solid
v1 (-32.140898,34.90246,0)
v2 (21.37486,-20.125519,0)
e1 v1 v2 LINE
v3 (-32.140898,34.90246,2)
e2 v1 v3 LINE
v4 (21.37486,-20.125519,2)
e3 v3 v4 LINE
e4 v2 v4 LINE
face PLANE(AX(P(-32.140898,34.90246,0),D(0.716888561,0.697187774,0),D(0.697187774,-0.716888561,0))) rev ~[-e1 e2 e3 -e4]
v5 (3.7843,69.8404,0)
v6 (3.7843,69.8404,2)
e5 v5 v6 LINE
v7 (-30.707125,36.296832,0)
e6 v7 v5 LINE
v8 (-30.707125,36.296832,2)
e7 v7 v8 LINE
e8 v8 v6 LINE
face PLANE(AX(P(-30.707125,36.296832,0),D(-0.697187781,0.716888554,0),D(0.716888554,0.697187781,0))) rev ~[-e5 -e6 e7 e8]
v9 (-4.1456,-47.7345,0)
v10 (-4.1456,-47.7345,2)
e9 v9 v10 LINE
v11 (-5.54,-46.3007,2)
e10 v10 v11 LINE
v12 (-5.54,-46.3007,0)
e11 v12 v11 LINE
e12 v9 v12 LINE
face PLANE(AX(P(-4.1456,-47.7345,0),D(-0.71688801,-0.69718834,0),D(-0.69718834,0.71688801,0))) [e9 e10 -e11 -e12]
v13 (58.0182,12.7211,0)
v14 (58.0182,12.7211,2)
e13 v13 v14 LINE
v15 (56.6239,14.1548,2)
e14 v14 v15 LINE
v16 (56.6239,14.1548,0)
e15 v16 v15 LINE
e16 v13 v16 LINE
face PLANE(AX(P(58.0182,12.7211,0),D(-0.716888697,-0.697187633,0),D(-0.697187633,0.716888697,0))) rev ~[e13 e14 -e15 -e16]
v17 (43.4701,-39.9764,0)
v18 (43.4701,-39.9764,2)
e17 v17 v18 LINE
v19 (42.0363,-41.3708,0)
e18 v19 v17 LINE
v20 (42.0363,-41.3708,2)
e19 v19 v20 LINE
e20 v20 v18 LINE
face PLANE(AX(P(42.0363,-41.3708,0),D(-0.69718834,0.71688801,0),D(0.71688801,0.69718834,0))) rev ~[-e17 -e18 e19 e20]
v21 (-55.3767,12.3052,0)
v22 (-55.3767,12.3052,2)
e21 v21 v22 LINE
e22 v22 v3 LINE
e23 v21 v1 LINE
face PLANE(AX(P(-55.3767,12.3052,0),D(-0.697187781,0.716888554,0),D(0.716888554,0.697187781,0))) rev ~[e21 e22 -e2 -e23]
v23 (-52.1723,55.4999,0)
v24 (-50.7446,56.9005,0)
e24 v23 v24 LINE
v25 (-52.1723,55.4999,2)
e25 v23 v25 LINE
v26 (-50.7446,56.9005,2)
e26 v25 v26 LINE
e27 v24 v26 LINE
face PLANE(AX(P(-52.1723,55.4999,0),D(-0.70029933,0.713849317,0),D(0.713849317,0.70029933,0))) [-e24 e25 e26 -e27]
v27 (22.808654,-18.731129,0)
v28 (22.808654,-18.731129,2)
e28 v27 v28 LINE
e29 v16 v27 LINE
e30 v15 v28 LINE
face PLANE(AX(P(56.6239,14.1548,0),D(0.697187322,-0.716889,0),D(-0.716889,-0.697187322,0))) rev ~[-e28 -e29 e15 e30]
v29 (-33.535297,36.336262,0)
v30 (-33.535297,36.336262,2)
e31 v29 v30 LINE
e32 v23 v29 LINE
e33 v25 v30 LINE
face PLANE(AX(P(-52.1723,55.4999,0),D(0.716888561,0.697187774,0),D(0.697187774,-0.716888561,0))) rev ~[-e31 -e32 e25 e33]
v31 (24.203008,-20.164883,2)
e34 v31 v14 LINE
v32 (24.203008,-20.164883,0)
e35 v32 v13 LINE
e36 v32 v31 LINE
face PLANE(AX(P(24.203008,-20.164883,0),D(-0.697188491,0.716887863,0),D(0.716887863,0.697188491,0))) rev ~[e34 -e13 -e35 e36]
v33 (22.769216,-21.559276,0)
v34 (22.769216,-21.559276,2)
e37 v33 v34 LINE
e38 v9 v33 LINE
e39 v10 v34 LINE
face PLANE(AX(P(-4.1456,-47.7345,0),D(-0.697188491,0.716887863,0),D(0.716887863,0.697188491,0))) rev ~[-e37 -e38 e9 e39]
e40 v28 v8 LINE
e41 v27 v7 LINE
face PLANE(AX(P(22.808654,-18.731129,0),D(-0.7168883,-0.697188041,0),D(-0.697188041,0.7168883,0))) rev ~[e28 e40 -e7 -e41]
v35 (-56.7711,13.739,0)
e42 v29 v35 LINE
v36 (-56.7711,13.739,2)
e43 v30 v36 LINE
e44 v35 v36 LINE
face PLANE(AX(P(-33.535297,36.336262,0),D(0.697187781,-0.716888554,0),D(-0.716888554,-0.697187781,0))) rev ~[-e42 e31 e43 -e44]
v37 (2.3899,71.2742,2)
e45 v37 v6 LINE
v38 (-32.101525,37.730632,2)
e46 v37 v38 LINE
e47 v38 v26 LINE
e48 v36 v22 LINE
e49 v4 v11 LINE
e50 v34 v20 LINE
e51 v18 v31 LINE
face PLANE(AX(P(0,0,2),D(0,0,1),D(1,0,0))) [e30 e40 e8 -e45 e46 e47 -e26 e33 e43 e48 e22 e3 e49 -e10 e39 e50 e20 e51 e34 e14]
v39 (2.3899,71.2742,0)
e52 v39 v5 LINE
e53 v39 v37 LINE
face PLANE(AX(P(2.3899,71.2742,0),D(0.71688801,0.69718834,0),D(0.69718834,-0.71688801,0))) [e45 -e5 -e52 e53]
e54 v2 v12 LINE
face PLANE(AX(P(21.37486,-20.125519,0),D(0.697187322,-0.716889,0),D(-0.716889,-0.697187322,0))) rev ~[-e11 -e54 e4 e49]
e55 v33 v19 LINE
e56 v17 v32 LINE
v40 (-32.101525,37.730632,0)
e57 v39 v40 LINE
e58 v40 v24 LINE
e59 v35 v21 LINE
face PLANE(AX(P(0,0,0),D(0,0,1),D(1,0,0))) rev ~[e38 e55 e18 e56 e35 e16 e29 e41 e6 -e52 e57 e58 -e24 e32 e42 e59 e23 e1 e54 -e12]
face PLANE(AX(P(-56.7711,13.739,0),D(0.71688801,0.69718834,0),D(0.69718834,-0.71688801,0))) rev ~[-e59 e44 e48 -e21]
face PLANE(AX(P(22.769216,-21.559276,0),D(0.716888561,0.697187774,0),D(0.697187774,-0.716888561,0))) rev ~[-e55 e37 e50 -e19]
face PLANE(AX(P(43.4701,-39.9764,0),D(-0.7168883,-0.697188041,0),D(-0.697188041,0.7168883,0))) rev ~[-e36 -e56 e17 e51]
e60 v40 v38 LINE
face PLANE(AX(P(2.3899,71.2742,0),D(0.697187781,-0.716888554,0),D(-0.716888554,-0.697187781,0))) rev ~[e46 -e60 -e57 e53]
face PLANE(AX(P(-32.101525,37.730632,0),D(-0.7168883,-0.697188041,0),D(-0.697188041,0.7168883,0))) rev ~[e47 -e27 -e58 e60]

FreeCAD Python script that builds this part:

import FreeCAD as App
import Part
import Sketcher

V = App.Vector
Q = App.Units.Quantity

doc = App.newDocument("Part")
body = doc.addObject("PartDesign::Body", "Body")

# Sketch on XY plane
sketch1 = body.newObject("Sketcher::SketchObject", "Sketch")
sketch1.AttachmentSupport = (doc.getObject("XY_Plane"), [""])
sketch1.MapMode = "FlatFace"
sketch1.addGeometry([
    Part.LineSegment(V(-50.7446, 56.9005, 0), V(-52.1723, 55.4999, 0)),  # 0
    Part.LineSegment(V(-52.1723, 55.4999, 0), V(-33.535297, 36.336262, 0)),  # 1
    Part.LineSegment(V(-33.535297, 36.336262, 0), V(-56.7711, 13.739, 0)),  # 2
    Part.LineSegment(V(-56.7711, 13.739, 0), V(-55.3767, 12.3052, 0)),  # 3
    Part.LineSegment(V(-55.3767, 12.3052, 0), V(-32.140898, 34.90246, 0)),  # 4
    Part.LineSegment(V(-32.140898, 34.90246, 0), V(21.37486, -20.125519, 0)),  # 5
    Part.LineSegment(V(21.37486, -20.125519, 0), V(-5.54, -46.3007, 0)),  # 6
    Part.LineSegment(V(-5.54, -46.3007, 0), V(-4.1456, -47.7345, 0)),  # 7
    Part.LineSegment(V(-4.1456, -47.7345, 0), V(22.769216, -21.559276, 0)),  # 8
    Part.LineSegment(V(22.769216, -21.559276, 0), V(42.0363, -41.3708, 0)),  # 9
    Part.LineSegment(V(42.0363, -41.3708, 0), V(43.4701, -39.9764, 0)),  # 10
    Part.LineSegment(V(43.4701, -39.9764, 0), V(24.203008, -20.164883, 0)),  # 11
    Part.LineSegment(V(24.203008, -20.164883, 0), V(58.0182, 12.7211, 0)),  # 12
    Part.LineSegment(V(58.0182, 12.7211, 0), V(56.6239, 14.1548, 0)),  # 13
    Part.LineSegment(V(56.6239, 14.1548, 0), V(22.808654, -18.731129, 0)),  # 14
    Part.LineSegment(V(22.808654, -18.731129, 0), V(-30.707125, 36.296832, 0)),  # 15
    Part.LineSegment(V(-30.707125, 36.296832, 0), V(3.7843, 69.8404, 0)),  # 16
    Part.LineSegment(V(3.7843, 69.8404, 0), V(2.3899, 71.2742, 0)),  # 17
    Part.LineSegment(V(2.3899, 71.2742, 0), V(-32.101525, 37.730632, 0)),  # 18
    Part.LineSegment(V(-32.101525, 37.730632, 0), V(-50.7446, 56.9005, 0)),  # 19
], False)
sketch1.addConstraint([
    Sketcher.Constraint("Coincident", 0, 2, 1, 1),
    Sketcher.Constraint("Coincident", 1, 2, 2, 1),
    Sketcher.Constraint("Coincident", 2, 2, 3, 1),
    Sketcher.Constraint("Coincident", 3, 2, 4, 1),
    Sketcher.Constraint("Coincident", 4, 2, 5, 1),
    Sketcher.Constraint("Coincident", 5, 2, 6, 1),
    Sketcher.Constraint("Coincident", 6, 2, 7, 1),
    Sketcher.Constraint("Coincident", 7, 2, 8, 1),
    Sketcher.Constraint("Coincident", 8, 2, 9, 1),
    Sketcher.Constraint("Coincident", 9, 2, 10, 1),
    Sketcher.Constraint("Coincident", 10, 2, 11, 1),
    Sketcher.Constraint("Coincident", 11, 2, 12, 1),
    Sketcher.Constraint("Coincident", 12, 2, 13, 1),
    Sketcher.Constraint("Coincident", 13, 2, 14, 1),
    Sketcher.Constraint("Coincident", 14, 2, 15, 1),
    Sketcher.Constraint("Coincident", 15, 2, 16, 1),
    Sketcher.Constraint("Coincident", 16, 2, 17, 1),
    Sketcher.Constraint("Coincident", 17, 2, 18, 1),
    Sketcher.Constraint("Coincident", 18, 2, 19, 1),
    Sketcher.Constraint("Coincident", 19, 2, 0, 1),
    Sketcher.Constraint("Distance", 0, Q("2 mm")),
    Sketcher.Constraint("Distance", 3, Q("2 mm")),
    Sketcher.Constraint("Distance", 7, Q("2 mm")),
    Sketcher.Constraint("Distance", 10, Q("2 mm")),
    Sketcher.Constraint("Distance", 13, Q("2 mm")),
    Sketcher.Constraint("Distance", 17, Q("2 mm")),
    Sketcher.Constraint("DistanceY", -1, 1, 0, 2, Q("55.5 mm")),
    Sketcher.Constraint("DistanceX", 6, 2, -1, 1, Q("5.54 mm")),
    Sketcher.Constraint("DistanceX", -1, 1, 10, 2, Q("43.47 mm")),
    Sketcher.Constraint("DistanceX", -1, 1, 17, 2, Q("2.39 mm")),
    Sketcher.Constraint("DistanceX", 4, 2, 8, 2, Q("54.91 mm")),
    Sketcher.Constraint("DistanceY", 6, 2, 9, 2, Q("4.93 mm")),
    Sketcher.Constraint("Distance", 2, Q("32.412 mm")),
    Sketcher.Constraint("Distance", 4, Q("32.412 mm")),
    Sketcher.Constraint("Distance", 6, Q("37.544 mm")),
    Sketcher.Constraint("Distance", 8, Q("37.544 mm")),
    Sketcher.Constraint("DistanceX", 2, 2, -1, 1, Q("56.771 mm")),
    Sketcher.Constraint("DistanceY", -1, 1, 2, 2, Q("13.739 mm")),
    Sketcher.Constraint("DistanceX", 4, 2, -1, 1, Q("32.141 mm")),
    Sketcher.Constraint("DistanceX", -1, 1, 11, 2, Q("24.203 mm")),
    Sketcher.Constraint("DistanceY", 11, 2, -1, 1, Q("20.165 mm")),
    Sketcher.Constraint("DistanceY", -1, 1, 12, 2, Q("12.721 mm")),
    Sketcher.Constraint("DistanceX", -1, 1, 13, 2, Q("56.624 mm")),
    Sketcher.Constraint("DistanceX", 0, 2, 1, 2, Q("18.637 mm")),
    Sketcher.Constraint("DistanceY", 3, 2, 1, 2, Q("24.031 mm")),
    Sketcher.Constraint("DistanceY", 5, 2, 4, 2, Q("55.028 mm")),
    Sketcher.Constraint("DistanceX", 2, 2, 5, 2, Q("78.146 mm")),
    Sketcher.Constraint("DistanceY", 6, 2, 3, 2, Q("58.606 mm")),
    Sketcher.Constraint("DistanceY", 7, 2, 5, 2, Q("27.609 mm")),
    Sketcher.Constraint("DistanceX", 8, 2, 9, 2, Q("19.267 mm")),
    Sketcher.Constraint("DistanceX", 8, 2, 12, 2, Q("35.249 mm")),
    Sketcher.Constraint("DistanceY", 15, 2, 0, 2, Q("19.203 mm")),
    Sketcher.Constraint("DistanceX", 2, 2, 15, 2, Q("26.064 mm")),
    Sketcher.Constraint("DistanceY", 4, 2, 16, 2, Q("34.938 mm")),
    Sketcher.Constraint("DistanceY", 1, 2, 17, 2, Q("34.938 mm")),
    Sketcher.Constraint("DistanceX", 19, 2, 18, 2, Q("18.643 mm")),
    Sketcher.Constraint("DistanceY", 4, 2, 19, 2, Q("21.998 mm")),
    Sketcher.Constraint("Distance", 14, Q("47.1694 mm")),
    Sketcher.Constraint("Distance", 15, Q("76.7595 mm")),
    Sketcher.Constraint("Distance", 18, Q("48.1127 mm")),
])
pad1 = body.newObject("PartDesign::Pad", "Pad")
pad1.Profile = sketch1
pad1.Length = 2

doc.recompute()
